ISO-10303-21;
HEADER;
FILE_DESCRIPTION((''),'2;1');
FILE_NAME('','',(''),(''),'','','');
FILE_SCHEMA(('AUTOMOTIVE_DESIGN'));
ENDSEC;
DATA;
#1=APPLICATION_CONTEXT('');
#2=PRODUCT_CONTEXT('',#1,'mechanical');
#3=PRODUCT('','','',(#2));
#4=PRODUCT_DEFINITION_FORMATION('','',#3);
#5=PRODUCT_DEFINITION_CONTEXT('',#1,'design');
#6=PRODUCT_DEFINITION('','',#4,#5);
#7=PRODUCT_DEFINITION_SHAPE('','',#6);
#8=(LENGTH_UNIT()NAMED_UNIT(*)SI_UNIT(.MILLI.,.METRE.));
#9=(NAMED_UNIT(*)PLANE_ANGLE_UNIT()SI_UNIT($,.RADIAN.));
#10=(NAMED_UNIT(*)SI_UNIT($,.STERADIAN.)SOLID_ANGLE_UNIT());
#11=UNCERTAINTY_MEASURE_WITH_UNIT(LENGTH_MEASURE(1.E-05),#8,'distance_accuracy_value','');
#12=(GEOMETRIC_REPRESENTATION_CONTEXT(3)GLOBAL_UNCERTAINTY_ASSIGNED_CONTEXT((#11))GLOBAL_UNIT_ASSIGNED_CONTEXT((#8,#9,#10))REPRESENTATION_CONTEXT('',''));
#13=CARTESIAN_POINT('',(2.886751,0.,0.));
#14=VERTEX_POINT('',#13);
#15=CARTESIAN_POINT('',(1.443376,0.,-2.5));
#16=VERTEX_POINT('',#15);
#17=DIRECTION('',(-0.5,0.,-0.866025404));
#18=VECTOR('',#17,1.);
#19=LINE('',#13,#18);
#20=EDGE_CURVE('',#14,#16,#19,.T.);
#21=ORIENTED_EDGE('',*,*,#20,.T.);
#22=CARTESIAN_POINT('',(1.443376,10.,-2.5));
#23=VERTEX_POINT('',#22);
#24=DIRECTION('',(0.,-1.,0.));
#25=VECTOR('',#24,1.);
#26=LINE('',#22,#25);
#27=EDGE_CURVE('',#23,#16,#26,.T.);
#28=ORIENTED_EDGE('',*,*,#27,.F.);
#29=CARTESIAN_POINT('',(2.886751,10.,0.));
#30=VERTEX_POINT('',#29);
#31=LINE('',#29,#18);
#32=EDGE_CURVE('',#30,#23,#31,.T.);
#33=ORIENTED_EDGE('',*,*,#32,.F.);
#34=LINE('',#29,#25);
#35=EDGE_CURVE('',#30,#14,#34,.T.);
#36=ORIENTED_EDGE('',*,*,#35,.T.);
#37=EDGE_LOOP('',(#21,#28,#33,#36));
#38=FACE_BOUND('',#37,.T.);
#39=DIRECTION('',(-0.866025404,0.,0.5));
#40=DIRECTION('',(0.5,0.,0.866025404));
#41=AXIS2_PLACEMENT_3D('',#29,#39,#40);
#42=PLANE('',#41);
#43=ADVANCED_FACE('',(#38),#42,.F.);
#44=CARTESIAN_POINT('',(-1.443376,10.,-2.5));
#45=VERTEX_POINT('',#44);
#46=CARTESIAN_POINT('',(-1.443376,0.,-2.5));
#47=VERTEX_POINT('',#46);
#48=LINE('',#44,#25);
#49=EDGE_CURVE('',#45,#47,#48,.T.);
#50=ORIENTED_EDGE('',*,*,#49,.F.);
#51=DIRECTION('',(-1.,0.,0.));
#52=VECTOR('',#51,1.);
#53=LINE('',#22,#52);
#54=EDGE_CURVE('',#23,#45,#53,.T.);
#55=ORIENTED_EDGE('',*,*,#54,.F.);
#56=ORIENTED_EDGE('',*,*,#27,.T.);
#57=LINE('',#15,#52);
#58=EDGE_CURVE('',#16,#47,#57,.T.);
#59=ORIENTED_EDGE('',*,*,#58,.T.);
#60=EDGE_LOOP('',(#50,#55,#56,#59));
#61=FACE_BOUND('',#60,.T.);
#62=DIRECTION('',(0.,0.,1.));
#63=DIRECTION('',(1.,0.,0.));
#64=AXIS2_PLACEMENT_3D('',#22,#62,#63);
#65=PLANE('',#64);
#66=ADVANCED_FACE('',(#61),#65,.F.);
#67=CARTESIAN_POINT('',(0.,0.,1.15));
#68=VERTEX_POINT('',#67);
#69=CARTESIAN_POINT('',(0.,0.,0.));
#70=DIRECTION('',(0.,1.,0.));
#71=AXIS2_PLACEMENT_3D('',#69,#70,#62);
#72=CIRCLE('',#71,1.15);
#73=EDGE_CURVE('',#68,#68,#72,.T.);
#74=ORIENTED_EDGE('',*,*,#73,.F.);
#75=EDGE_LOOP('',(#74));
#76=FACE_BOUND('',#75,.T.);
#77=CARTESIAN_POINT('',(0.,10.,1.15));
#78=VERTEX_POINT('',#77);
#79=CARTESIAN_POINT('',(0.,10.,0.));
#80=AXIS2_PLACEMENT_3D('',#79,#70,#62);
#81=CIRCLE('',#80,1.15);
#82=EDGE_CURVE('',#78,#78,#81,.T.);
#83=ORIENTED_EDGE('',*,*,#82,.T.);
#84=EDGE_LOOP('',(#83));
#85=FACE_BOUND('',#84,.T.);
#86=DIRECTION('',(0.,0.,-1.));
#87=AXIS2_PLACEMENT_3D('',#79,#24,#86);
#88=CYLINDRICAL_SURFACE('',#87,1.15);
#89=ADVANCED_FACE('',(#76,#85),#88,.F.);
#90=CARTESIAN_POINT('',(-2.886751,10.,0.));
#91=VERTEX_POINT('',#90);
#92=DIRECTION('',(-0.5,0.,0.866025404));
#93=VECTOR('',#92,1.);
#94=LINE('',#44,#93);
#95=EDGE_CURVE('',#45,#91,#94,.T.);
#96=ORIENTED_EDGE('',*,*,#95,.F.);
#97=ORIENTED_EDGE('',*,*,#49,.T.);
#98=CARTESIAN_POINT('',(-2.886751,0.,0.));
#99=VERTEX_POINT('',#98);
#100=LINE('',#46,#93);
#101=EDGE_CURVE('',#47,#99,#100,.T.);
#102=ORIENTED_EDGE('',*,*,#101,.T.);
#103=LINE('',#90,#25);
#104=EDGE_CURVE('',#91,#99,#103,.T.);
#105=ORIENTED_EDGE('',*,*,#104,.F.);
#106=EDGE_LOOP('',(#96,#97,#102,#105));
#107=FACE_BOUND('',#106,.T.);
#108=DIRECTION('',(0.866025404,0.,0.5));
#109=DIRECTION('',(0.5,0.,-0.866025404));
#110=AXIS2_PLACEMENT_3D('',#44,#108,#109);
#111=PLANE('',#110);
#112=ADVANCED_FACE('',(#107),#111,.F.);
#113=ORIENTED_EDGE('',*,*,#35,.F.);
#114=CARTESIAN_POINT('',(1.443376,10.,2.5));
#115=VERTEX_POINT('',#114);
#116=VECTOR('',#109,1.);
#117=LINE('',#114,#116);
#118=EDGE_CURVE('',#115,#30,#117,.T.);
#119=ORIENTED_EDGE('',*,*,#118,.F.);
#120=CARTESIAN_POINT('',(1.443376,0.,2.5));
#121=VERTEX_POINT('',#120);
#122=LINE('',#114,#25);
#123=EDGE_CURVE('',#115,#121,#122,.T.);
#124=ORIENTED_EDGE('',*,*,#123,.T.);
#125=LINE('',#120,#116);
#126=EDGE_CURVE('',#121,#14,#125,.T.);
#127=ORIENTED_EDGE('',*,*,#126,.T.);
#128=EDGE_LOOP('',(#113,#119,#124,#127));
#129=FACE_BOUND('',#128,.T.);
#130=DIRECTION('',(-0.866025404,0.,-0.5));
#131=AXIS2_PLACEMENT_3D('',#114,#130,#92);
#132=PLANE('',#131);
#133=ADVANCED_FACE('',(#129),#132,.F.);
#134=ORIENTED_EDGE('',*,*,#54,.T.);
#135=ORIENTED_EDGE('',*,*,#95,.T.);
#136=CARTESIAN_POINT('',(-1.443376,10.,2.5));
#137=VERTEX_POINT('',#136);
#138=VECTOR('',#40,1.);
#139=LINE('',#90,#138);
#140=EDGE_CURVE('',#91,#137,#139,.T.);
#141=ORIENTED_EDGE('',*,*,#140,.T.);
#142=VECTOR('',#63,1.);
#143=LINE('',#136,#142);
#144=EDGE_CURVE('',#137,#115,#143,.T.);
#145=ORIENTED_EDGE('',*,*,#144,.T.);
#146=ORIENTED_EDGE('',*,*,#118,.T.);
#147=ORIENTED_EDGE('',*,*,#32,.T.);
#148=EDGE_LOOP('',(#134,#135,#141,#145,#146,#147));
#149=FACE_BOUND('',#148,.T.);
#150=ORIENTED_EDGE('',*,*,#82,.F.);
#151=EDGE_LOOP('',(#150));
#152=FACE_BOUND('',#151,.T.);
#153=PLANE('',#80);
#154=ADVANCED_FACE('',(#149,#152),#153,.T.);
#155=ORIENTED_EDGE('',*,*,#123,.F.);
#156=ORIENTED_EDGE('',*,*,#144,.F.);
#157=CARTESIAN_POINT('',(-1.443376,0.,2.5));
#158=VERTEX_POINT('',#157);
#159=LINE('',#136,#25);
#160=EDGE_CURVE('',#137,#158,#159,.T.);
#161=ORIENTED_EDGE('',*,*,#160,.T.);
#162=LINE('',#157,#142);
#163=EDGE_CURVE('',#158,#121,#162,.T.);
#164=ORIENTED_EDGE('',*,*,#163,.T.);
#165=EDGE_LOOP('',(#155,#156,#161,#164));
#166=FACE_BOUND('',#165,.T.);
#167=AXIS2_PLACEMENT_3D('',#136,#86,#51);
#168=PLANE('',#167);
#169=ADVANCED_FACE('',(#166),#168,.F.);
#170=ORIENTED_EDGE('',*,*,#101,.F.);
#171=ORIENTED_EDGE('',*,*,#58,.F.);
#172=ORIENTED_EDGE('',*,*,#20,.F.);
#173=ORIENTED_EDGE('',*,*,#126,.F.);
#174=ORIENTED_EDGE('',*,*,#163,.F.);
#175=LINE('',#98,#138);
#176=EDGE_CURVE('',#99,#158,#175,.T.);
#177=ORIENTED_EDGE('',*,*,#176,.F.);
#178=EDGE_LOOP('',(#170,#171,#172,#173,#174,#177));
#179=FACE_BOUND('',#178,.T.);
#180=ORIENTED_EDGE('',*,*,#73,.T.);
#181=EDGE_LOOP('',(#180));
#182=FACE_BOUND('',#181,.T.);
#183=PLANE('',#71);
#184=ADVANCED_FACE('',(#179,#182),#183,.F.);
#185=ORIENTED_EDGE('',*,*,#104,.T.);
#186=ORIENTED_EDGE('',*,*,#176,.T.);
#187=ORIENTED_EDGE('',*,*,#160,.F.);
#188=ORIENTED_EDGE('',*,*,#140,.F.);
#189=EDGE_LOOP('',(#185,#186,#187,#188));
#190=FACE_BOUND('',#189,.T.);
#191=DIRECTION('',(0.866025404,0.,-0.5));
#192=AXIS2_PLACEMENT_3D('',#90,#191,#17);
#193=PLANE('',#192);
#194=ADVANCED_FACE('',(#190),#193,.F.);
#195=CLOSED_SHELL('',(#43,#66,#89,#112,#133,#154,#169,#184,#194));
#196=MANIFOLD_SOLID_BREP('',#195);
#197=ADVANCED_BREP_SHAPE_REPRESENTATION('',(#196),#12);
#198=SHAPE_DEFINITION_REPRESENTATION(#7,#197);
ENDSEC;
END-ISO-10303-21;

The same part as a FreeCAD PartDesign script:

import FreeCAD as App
import Part
import Sketcher
from FreeCAD import Vector
Q = App.Units.Quantity


def add_polygon(sketch, points):
    """Adds a closed chain of lines whose ends are joined by coincident constraints."""
    first, n = sketch.GeometryCount, len(points)
    for a, b in zip(points, points[1:] + points[:1]):
        sketch.addGeometry(Part.LineSegment(App.Vector(*a, 0), App.Vector(*b, 0)), False)
    for i in range(n):
        sketch.addConstraint(Sketcher.Constraint("Coincident", first + i, 2, first + (i + 1) % n, 1))

doc = App.newDocument("Part")
params = doc.addObject("Spreadsheet::Sheet", "Params")
for row, (alias, value) in enumerate([
    ("sketch1_diameter", "2.3 mm"),
    ("pad1_length", "10 mm"),
], start=1):
    params.set(f"A{row}", alias)
    params.set(f"B{row}", "=" + value)
    params.setAlias(f"B{row}", alias)

body = doc.addObject("PartDesign::Body", "Body")

sketch1 = body.newObject("Sketcher::SketchObject", "Sketch")
sketch1.AttachmentSupport = (doc.getObject("XZ_Plane"), [""])
sketch1.MapMode = "FlatFace"
add_polygon(sketch1, [(2.9, 0), (1.4, -2.5), (-1.4, -2.5), (-2.9, 0), (-1.4, 2.5), (1.4, 2.5)])
sketch1.addGeometry(Part.Circle(Vector(0, 0, 0), Vector(0, 0, 1), 1.1), False)
sketch1.addConstraint(Sketcher.Constraint("Horizontal", 1))
sketch1.addConstraint(Sketcher.Constraint("Horizontal", 4))
sketch1.addConstraint(Sketcher.Constraint("Coincident", 6, 3, -1, 1))
sketch1.addConstraint(Sketcher.Constraint("Symmetric", 0, 2, 3, 2, -1, 1))
sketch1.addConstraint(Sketcher.Constraint("Symmetric", 2, 2, 5, 2, -1, 1))
sketch1.addConstraint(Sketcher.Constraint("PointOnObject", 2, 2, -1))
sketch1.addConstraint(Sketcher.Constraint("Parallel", 2, 5))
sketch1.addConstraint(Sketcher.Constraint("Vertical", 1, 2, 3, 2))
sketch1.addConstraint(Sketcher.Constraint("Diameter", 6, 2.3))
sketch1.addConstraint(Sketcher.Constraint("Angle", 0, Q("-120 deg")))
sketch1.addConstraint(Sketcher.Constraint("DistanceY", 1, 2, 3, 2, 5.0))
sketch1.addConstraint(Sketcher.Constraint("DistanceX", 1, 2, 1, 1, 2.886751))
sketch1.setExpression("Constraints[14]", "Params.sketch1_diameter")
pad1 = body.newObject("PartDesign::Pad", "Pad")
pad1.Profile = sketch1
pad1.setExpression("Length", "Params.pad1_length")
pad1.Reversed = True

doc.recompute()
